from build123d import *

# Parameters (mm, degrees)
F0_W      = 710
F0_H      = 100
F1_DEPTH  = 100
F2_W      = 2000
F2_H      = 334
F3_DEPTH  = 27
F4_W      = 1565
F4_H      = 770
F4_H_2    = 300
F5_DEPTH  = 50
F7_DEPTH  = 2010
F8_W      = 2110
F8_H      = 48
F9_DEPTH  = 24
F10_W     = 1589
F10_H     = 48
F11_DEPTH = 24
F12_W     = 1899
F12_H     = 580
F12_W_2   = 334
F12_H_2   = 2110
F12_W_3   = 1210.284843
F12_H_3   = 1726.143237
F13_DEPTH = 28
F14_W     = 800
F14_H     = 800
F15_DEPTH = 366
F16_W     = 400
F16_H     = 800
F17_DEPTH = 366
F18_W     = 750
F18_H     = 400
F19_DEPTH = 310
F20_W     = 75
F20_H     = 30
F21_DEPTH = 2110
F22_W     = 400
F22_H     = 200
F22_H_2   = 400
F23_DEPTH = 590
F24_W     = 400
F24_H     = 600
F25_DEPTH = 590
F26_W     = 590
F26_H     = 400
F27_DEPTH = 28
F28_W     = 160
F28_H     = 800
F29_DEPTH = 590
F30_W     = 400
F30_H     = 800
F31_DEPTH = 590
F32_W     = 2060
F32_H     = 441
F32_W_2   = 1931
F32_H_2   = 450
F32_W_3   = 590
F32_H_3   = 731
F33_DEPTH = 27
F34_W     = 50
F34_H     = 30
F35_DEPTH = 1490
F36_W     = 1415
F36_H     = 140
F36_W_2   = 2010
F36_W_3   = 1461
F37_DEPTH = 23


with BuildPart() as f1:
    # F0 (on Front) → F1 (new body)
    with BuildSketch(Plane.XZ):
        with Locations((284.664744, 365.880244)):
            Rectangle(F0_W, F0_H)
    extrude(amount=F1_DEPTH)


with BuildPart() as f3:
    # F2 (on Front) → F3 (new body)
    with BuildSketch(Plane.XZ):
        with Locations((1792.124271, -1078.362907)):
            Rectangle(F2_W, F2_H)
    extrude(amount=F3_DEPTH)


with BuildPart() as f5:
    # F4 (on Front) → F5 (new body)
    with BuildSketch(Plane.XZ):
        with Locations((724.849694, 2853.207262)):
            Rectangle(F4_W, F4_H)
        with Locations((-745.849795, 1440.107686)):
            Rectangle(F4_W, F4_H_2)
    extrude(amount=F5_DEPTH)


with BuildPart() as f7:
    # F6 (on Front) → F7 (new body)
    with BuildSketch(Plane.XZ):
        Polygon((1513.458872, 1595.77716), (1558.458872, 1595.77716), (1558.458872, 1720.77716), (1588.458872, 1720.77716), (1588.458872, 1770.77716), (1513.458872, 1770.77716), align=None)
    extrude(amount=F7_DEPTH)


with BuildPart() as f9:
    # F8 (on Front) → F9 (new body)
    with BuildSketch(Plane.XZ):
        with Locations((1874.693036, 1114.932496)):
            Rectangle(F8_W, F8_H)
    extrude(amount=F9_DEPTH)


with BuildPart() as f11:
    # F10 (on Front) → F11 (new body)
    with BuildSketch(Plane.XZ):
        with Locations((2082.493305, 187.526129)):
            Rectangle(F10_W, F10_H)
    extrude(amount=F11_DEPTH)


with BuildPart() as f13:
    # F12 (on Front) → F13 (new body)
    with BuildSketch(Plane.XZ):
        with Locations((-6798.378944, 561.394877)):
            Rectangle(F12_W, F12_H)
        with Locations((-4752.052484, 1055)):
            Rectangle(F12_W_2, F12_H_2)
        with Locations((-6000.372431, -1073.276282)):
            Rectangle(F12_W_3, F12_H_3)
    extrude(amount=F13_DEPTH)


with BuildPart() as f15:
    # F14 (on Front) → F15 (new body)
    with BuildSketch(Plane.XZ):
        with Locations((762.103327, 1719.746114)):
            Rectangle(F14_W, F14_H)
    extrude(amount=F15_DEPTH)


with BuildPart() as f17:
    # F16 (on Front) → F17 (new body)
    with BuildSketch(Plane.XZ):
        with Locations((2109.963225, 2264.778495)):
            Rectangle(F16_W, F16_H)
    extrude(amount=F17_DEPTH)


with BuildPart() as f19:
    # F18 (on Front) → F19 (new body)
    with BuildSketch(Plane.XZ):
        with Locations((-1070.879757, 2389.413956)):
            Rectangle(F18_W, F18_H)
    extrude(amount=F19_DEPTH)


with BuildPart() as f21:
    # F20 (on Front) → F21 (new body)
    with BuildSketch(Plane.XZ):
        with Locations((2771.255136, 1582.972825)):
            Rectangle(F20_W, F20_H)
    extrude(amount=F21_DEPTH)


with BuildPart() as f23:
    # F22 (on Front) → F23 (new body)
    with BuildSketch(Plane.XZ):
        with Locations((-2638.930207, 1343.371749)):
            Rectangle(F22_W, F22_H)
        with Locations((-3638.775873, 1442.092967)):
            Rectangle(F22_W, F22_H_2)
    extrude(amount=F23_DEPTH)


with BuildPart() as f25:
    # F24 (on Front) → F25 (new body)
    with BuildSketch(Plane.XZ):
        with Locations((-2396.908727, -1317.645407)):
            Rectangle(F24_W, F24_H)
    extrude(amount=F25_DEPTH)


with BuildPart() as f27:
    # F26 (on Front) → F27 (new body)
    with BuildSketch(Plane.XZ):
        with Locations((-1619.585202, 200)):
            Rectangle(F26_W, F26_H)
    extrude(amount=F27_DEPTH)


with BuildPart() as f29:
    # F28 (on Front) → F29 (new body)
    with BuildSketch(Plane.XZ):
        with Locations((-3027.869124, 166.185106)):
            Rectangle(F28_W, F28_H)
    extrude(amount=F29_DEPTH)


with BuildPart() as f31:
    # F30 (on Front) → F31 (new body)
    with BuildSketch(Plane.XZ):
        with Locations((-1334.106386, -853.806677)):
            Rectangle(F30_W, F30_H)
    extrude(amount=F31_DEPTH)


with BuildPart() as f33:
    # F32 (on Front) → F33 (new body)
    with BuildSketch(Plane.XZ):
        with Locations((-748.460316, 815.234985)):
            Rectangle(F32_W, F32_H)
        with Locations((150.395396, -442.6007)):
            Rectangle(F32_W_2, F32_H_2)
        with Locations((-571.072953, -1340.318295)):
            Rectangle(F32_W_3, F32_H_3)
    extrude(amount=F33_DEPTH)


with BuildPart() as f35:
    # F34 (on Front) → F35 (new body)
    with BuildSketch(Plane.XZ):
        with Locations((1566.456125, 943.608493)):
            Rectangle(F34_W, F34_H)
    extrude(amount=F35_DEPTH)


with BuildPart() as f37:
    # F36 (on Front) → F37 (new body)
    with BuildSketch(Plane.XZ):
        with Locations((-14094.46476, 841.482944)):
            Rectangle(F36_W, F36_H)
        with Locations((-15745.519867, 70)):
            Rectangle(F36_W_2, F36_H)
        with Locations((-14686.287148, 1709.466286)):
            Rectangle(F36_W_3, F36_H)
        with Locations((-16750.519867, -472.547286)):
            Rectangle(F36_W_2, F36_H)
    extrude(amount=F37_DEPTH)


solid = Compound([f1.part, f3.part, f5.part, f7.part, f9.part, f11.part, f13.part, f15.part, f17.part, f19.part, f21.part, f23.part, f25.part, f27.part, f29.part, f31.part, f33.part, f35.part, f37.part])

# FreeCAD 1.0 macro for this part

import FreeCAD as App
import Part
import Sketcher
from FreeCAD import Vector
Q = App.Units.Quantity

doc = App.newDocument("Part")
params = doc.addObject("Spreadsheet::Sheet", "Params")
for row, (alias, value) in enumerate([
    ("sketch1_width", "710 mm"),
    ("sketch1_height", "100 mm"),
    ("pad1_length", "100 mm"),
    ("sketch2_width", "2000 mm"),
    ("sketch2_height", "334 mm"),
    ("pad2_length", "27 mm"),
    ("sketch3_width", "1565 mm"),
    ("sketch3_height", "770 mm"),
    ("sketch3_height2", "300 mm"),
    ("pad3_length", "50 mm"),
    ("sketch4_width", "45 mm"),
    ("sketch4_width2", "30 mm"),
    ("sketch4_height", "125 mm"),
    ("sketch4_height2", "50 mm"),
    ("pad4_length", "2010 mm"),
    ("sketch5_width", "2110 mm"),
    ("sketch5_height", "48 mm"),
    ("pad5_length", "24 mm"),
    ("sketch6_width", "1589 mm"),
    ("sketch6_height", "48 mm"),
    ("pad6_length", "24 mm"),
    ("sketch7_width", "1899 mm"),
    ("sketch7_width2", "334 mm"),
    ("sketch7_height", "580 mm"),
    ("sketch7_height2", "2110 mm"),
    ("pad7_length", "28 mm"),
    ("sketch8_width", "800 mm"),
    ("pad8_length", "366 mm"),
    ("sketch9_width", "400 mm"),
    ("sketch9_height", "800 mm"),
    ("pad9_length", "366 mm"),
    ("sketch10_width", "750 mm"),
    ("sketch10_height", "400 mm"),
    ("pad10_length", "310 mm"),
    ("sketch11_width", "75 mm"),
    ("sketch11_height", "30 mm"),
    ("pad11_length", "2110 mm"),
    ("sketch12_width", "400 mm"),
    ("sketch12_height", "200 mm"),
    ("pad12_length", "590 mm"),
    ("sketch13_width", "400 mm"),
    ("sketch13_height", "600 mm"),
    ("pad13_length", "590 mm"),
    ("sketch14_width", "590 mm"),
    ("sketch14_height", "400 mm"),
    ("pad14_length", "28 mm"),
    ("sketch15_width", "160 mm"),
    ("sketch15_height", "800 mm"),
    ("pad15_length", "590 mm"),
    ("sketch16_width", "400 mm"),
    ("sketch16_height", "800 mm"),
    ("pad16_length", "590 mm"),
    ("sketch17_width", "2060 mm"),
    ("sketch17_width2", "1931 mm"),
    ("sketch17_width3", "590 mm"),
    ("sketch17_height", "441 mm"),
    ("sketch17_height2", "450 mm"),
    ("pad17_length", "27 mm"),
    ("sketch18_width", "50 mm"),
    ("sketch18_height", "30 mm"),
    ("pad18_length", "1490 mm"),
    ("sketch19_width", "1415 mm"),
    ("sketch19_width2", "2010 mm"),
    ("sketch19_width3", "1461 mm"),
    ("sketch19_height", "140 mm"),
    ("pad19_length", "23 mm"),
], start=1):
    params.set(f"A{row}", alias)
    params.set(f"B{row}", "=" + value)
    params.setAlias(f"B{row}", alias)

body = doc.addObject("PartDesign::Body", "Body")

sketch1 = body.newObject("Sketcher::SketchObject", "Sketch")
sketch1.AttachmentSupport = (doc.getObject("XZ_Plane"), [""])
sketch1.MapMode = "FlatFace"
sketch1.addGeometry(Part.LineSegment(Vector(-70, 416, 0), Vector(-70, 316, 0)), False)
sketch1.addGeometry(Part.LineSegment(Vector(-70, 316, 0), Vector(640, 316, 0)), False)
sketch1.addGeometry(Part.LineSegment(Vector(640, 316, 0), Vector(640, 416, 0)), False)
sketch1.addGeometry(Part.LineSegment(Vector(640, 416, 0), Vector(-70, 416, 0)), False)
sketch1.addConstraint(Sketcher.Constraint("Coincident", 0, 2, 1, 1))
sketch1.addConstraint(Sketcher.Constraint("Coincident", 1, 2, 2, 1))
sketch1.addConstraint(Sketcher.Constraint("Coincident", 2, 2, 3, 1))
sketch1.addConstraint(Sketcher.Constraint("Coincident", 3, 2, 0, 1))
sketch1.addConstraint(Sketcher.Constraint("Vertical", 0))
sketch1.addConstraint(Sketcher.Constraint("Horizontal", 1))
sketch1.addConstraint(Sketcher.Constraint("Vertical", 2))
sketch1.addConstraint(Sketcher.Constraint("Horizontal", 3))
sketch1.addConstraint(Sketcher.Constraint("DistanceX", 1, 1, 1, 2, Q("710 mm")))
sketch1.addConstraint(Sketcher.Constraint("DistanceY", 0, 2, 0, 1, Q("100 mm")))
sketch1.addConstraint(Sketcher.Constraint("DistanceX", 0, 2, -1, 1, Q("70.335256 mm")))
sketch1.addConstraint(Sketcher.Constraint("DistanceY", -1, 1, 0, 2, Q("315.880244 mm")))
sketch1.setExpression("Constraints[8]", "Params.sketch1_width")
sketch1.setExpression("Constraints[9]", "Params.sketch1_height")
pad1 = body.newObject("PartDesign::Pad", "Pad")
pad1.Profile = sketch1
pad1.setExpression("Length", "Params.pad1_length")
body2 = doc.addObject("PartDesign::Body", "Body001")

sketch2 = body2.newObject("Sketcher::SketchObject", "Sketch001")
sketch2.AttachmentSupport = (doc.getObject("XZ_Plane001"), [""])
sketch2.MapMode = "FlatFace"
sketch2.addGeometry(Part.LineSegment(Vector(792, -911, 0), Vector(792, -1245, 0)), False)
sketch2.addGeometry(Part.LineSegment(Vector(792, -1245, 0), Vector(2792, -1245, 0)), False)
sketch2.addGeometry(Part.LineSegment(Vector(2792, -1245, 0), Vector(2792, -911, 0)), False)
sketch2.addGeometry(Part.LineSegment(Vector(2792, -911, 0), Vector(792, -911, 0)), False)
sketch2.addConstraint(Sketcher.Constraint("Coincident", 0, 2, 1, 1))
sketch2.addConstraint(Sketcher.Constraint("Coincident", 1, 2, 2, 1))
sketch2.addConstraint(Sketcher.Constraint("Coincident", 2, 2, 3, 1))
sketch2.addConstraint(Sketcher.Constraint("Coincident", 3, 2, 0, 1))
sketch2.addConstraint(Sketcher.Constraint("Vertical", 0))
sketch2.addConstraint(Sketcher.Constraint("Horizontal", 1))
sketch2.addConstraint(Sketcher.Constraint("Vertical", 2))
sketch2.addConstraint(Sketcher.Constraint("Horizontal", 3))
sketch2.addConstraint(Sketcher.Constraint("DistanceX", 1, 1, 1, 2, Q("2000 mm")))
sketch2.addConstraint(Sketcher.Constraint("DistanceY", 0, 2, 0, 1, Q("334 mm")))
sketch2.addConstraint(Sketcher.Constraint("DistanceX", -1, 1, 0, 2, Q("792.124271 mm")))
sketch2.addConstraint(Sketcher.Constraint("DistanceY", 0, 2, -1, 1, Q("1245.362907 mm")))
sketch2.setExpression("Constraints[8]", "Params.sketch2_width")
sketch2.setExpression("Constraints[9]", "Params.sketch2_height")
pad2 = body2.newObject("PartDesign::Pad", "Pad001")
pad2.Profile = sketch2
pad2.setExpression("Length", "Params.pad2_length")
body3 = doc.addObject("PartDesign::Body", "Body002")
body3.AllowCompound = True

sketch3 = body3.newObject("Sketcher::SketchObject", "Sketch002")
sketch3.AttachmentSupport = (doc.getObject("XZ_Plane002"), [""])
sketch3.MapMode = "FlatFace"
sketch3.addGeometry(Part.LineSegment(Vector(-58, 3238, 0), Vector(-58, 2468, 0)), False)
sketch3.addGeometry(Part.LineSegment(Vector(-58, 2468, 0), Vector(1507, 2468, 0)), False)
sketch3.addGeometry(Part.LineSegment(Vector(1507, 2468, 0), Vector(1507, 3238, 0)), False)
sketch3.addGeometry(Part.LineSegment(Vector(1507, 3238, 0), Vector(-58, 3238, 0)), False)
sketch3.addGeometry(Part.LineSegment(Vector(-1528, 1590, 0), Vector(-1528, 1290, 0)), False)
sketch3.addGeometry(Part.LineSegment(Vector(-1528, 1290, 0), Vector(37, 1290, 0)), False)
sketch3.addGeometry(Part.LineSegment(Vector(37, 1290, 0), Vector(37, 1590, 0)), False)
sketch3.addGeometry(Part.LineSegment(Vector(37, 1590, 0), Vector(-1528, 1590, 0)), False)
sketch3.addConstraint(Sketcher.Constraint("Coincident", 0, 2, 1, 1))
sketch3.addConstraint(Sketcher.Constraint("Coincident", 1, 2, 2, 1))
sketch3.addConstraint(Sketcher.Constraint("Coincident", 2, 2, 3, 1))
sketch3.addConstraint(Sketcher.Constraint("Coincident", 3, 2, 0, 1))
sketch3.addConstraint(Sketcher.Constraint("Coincident", 4, 2, 5, 1))
sketch3.addConstraint(Sketcher.Constraint("Coincident", 5, 2, 6, 1))
sketch3.addConstraint(Sketcher.Constraint("Coincident", 6, 2, 7, 1))
sketch3.addConstraint(Sketcher.Constraint("Coincident", 7, 2, 4, 1))
sketch3.addConstraint(Sketcher.Constraint("Vertical", 0))
sketch3.addConstraint(Sketcher.Constraint("Horizontal", 1))
sketch3.addConstraint(Sketcher.Constraint("Vertical", 2))
sketch3.addConstraint(Sketcher.Constraint("Horizontal", 3))
sketch3.addConstraint(Sketcher.Constraint("Vertical", 4))
sketch3.addConstraint(Sketcher.Constraint("Horizontal", 5))
sketch3.addConstraint(Sketcher.Constraint("Vertical", 6))
sketch3.addConstraint(Sketcher.Constraint("Horizontal", 7))
sketch3.addConstraint(Sketcher.Constraint("Equal", 3, 5))
sketch3.addConstraint(Sketcher.Constraint("DistanceX", 1, 1, 1, 2, Q("1565 mm")))
sketch3.addConstraint(Sketcher.Constraint("DistanceY", 0, 2, 0, 1, Q("770 mm")))
sketch3.addConstraint(Sketcher.Constraint("DistanceY", 4, 2, 4, 1, Q("300 mm")))
sketch3.addConstraint(Sketcher.Constraint("DistanceY", -1, 1, 0, 2, Q("2468.207262 mm")))
sketch3.addConstraint(Sketcher.Constraint("DistanceX", 4, 2, 0, 2, Q("1470.699489 mm")))
sketch3.addConstraint(Sketcher.Constraint("DistanceX", 0, 2, -1, 1, Q("57.650306 mm")))
sketch3.addConstraint(Sketcher.Constraint("DistanceY", -1, 1, 4, 2, Q("1290.107686 mm")))
sketch3.setExpression("Constraints[17]", "Params.sketch3_width")
sketch3.setExpression("Constraints[18]", "Params.sketch3_height")
sketch3.setExpression("Constraints[19]", "Params.sketch3_height2")
pad3 = body3.newObject("PartDesign::Pad", "Pad002")
pad3.Profile = sketch3
pad3.setExpression("Length", "Params.pad3_length")
body4 = doc.addObject("PartDesign::Body", "Body003")

sketch4 = body4.newObject("Sketcher::SketchObject", "Sketch003")
sketch4.AttachmentSupport = (doc.getObject("XZ_Plane003"), [""])
sketch4.MapMode = "FlatFace"
sketch4.addGeometry(Part.LineSegment(Vector(1513, 1596, 0), Vector(1558, 1596, 0)), False)
sketch4.addGeometry(Part.LineSegment(Vector(1558, 1596, 0), Vector(1558, 1721, 0)), False)
sketch4.addGeometry(Part.LineSegment(Vector(1558, 1721, 0), Vector(1588, 1721, 0)), False)
sketch4.addGeometry(Part.LineSegment(Vector(1588, 1721, 0), Vector(1588, 1771, 0)), False)
sketch4.addGeometry(Part.LineSegment(Vector(1588, 1771, 0), Vector(1513, 1771, 0)), False)
sketch4.addGeometry(Part.LineSegment(Vector(1513, 1771, 0), Vector(1513, 1596, 0)), False)
sketch4.addConstraint(Sketcher.Constraint("Coincident", 0, 2, 1, 1))
sketch4.addConstraint(Sketcher.Constraint("Coincident", 1, 2, 2, 1))
sketch4.addConstraint(Sketcher.Constraint("Coincident", 2, 2, 3, 1))
sketch4.addConstraint(Sketcher.Constraint("Coincident", 3, 2, 4, 1))
sketch4.addConstraint(Sketcher.Constraint("Coincident", 4, 2, 5, 1))
sketch4.addConstraint(Sketcher.Constraint("Coincident", 5, 2, 0, 1))
sketch4.addConstraint(Sketcher.Constraint("Horizontal", 0))
sketch4.addConstraint(Sketcher.Constraint("Vertical", 1))
sketch4.addConstraint(Sketcher.Constraint("Horizontal", 2))
sketch4.addConstraint(Sketcher.Constraint("Vertical", 3))
sketch4.addConstraint(Sketcher.Constraint("Horizontal", 4))
sketch4.addConstraint(Sketcher.Constraint("Vertical", 5))
sketch4.addConstraint(Sketcher.Constraint("DistanceX", 0, 1, 0, 2, Q("45 mm")))
sketch4.addConstraint(Sketcher.Constraint("DistanceX", 2, 1, 2, 2, Q("30 mm")))
sketch4.addConstraint(Sketcher.Constraint("DistanceY", 1, 1, 1, 2, Q("125 mm")))
sketch4.addConstraint(Sketcher.Constraint("DistanceY", 3, 1, 3, 2, Q("50 mm")))
sketch4.addConstraint(Sketcher.Constraint("DistanceX", -1, 1, 0, 2, Q("1558.458872 mm")))
sketch4.addConstraint(Sketcher.Constraint("DistanceY", -1, 1, 0, 2, Q("1595.77716 mm")))
sketch4.setExpression("Constraints[12]", "Params.sketch4_width")
sketch4.setExpression("Constraints[13]", "Params.sketch4_width2")
sketch4.setExpression("Constraints[14]", "Params.sketch4_height")
sketch4.setExpression("Constraints[15]", "Params.sketch4_height2")
pad4 = body4.newObject("PartDesign::Pad", "Pad003")
pad4.Profile = sketch4
pad4.setExpression("Length", "Params.pad4_length")
body5 = doc.addObject("PartDesign::Body", "Body004")

sketch5 = body5.newObject("Sketcher::SketchObject", "Sketch004")
sketch5.AttachmentSupport = (doc.getObject("XZ_Plane004"), [""])
sketch5.MapMode = "FlatFace"
sketch5.addGeometry(Part.LineSegment(Vector(820, 1139, 0), Vector(820, 1091, 0)), False)
sketch5.addGeometry(Part.LineSegment(Vector(820, 1091, 0), Vector(2930, 1091, 0)), False)
sketch5.addGeometry(Part.LineSegment(Vector(2930, 1091, 0), Vector(2930, 1139, 0)), False)
sketch5.addGeometry(Part.LineSegment(Vector(2930, 1139, 0), Vector(820, 1139, 0)), False)
sketch5.addConstraint(Sketcher.Constraint("Coincident", 0, 2, 1, 1))
sketch5.addConstraint(Sketcher.Constraint("Coincident", 1, 2, 2, 1))
sketch5.addConstraint(Sketcher.Constraint("Coincident", 2, 2, 3, 1))
sketch5.addConstraint(Sketcher.Constraint("Coincident", 3, 2, 0, 1))
sketch5.addConstraint(Sketcher.Constraint("Vertical", 0))
sketch5.addConstraint(Sketcher.Constraint("Horizontal", 1))
sketch5.addConstraint(Sketcher.Constraint("Vertical", 2))
sketch5.addConstraint(Sketcher.Constraint("Horizontal", 3))
sketch5.addConstraint(Sketcher.Constraint("DistanceX", 1, 1, 1, 2, Q("2110 mm")))
sketch5.addConstraint(Sketcher.Constraint("DistanceY", 0, 2, 0, 1, Q("48 mm")))
sketch5.addConstraint(Sketcher.Constraint("DistanceX", -1, 1, 0, 2, Q("819.693036 mm")))
sketch5.addConstraint(Sketcher.Constraint("DistanceY", -1, 1, 0, 2, Q("1090.932496 mm")))
sketch5.setExpression("Constraints[8]", "Params.sketch5_width")
sketch5.setExpression("Constraints[9]", "Params.sketch5_height")
pad5 = body5.newObject("PartDesign::Pad", "Pad004")
pad5.Profile = sketch5
pad5.setExpression("Length", "Params.pad5_length")
body6 = doc.addObject("PartDesign::Body", "Body005")

sketch6 = body6.newObject("Sketcher::SketchObject", "Sketch005")
sketch6.AttachmentSupport = (doc.getObject("XZ_Plane005"), [""])
sketch6.MapMode = "FlatFace"
sketch6.addGeometry(Part.LineSegment(Vector(1288, 212, 0), Vector(1288, 164, 0)), False)
sketch6.addGeometry(Part.LineSegment(Vector(1288, 164, 0), Vector(2877, 164, 0)), False)
sketch6.addGeometry(Part.LineSegment(Vector(2877, 164, 0), Vector(2877, 212, 0)), False)
sketch6.addGeometry(Part.LineSegment(Vector(2877, 212, 0), Vector(1288, 212, 0)), False)
sketch6.addConstraint(Sketcher.Constraint("Coincident", 0, 2, 1, 1))
sketch6.addConstraint(Sketcher.Constraint("Coincident", 1, 2, 2, 1))
sketch6.addConstraint(Sketcher.Constraint("Coincident", 2, 2, 3, 1))
sketch6.addConstraint(Sketcher.Constraint("Coincident", 3, 2, 0, 1))
sketch6.addConstraint(Sketcher.Constraint("Vertical", 0))
sketch6.addConstraint(Sketcher.Constraint("Horizontal", 1))
sketch6.addConstraint(Sketcher.Constraint("Vertical", 2))
sketch6.addConstraint(Sketcher.Constraint("Horizontal", 3))
sketch6.addConstraint(Sketcher.Constraint("DistanceX", 1, 1, 1, 2, Q("1589 mm")))
sketch6.addConstraint(Sketcher.Constraint("DistanceY", 0, 2, 0, 1, Q("48 mm")))
sketch6.addConstraint(Sketcher.Constraint("DistanceY", -1, 1, 0, 2, Q("163.526129 mm")))
sketch6.addConstraint(Sketcher.Constraint("DistanceX", -1, 1, 0, 2, Q("1287.993305 mm")))
sketch6.setExpression("Constraints[8]", "Params.sketch6_width")
sketch6.setExpression("Constraints[9]", "Params.sketch6_height")
pad6 = body6.newObject("PartDesign::Pad", "Pad005")
pad6.Profile = sketch6
pad6.setExpression("Length", "Params.pad6_length")
body7 = doc.addObject("PartDesign::Body", "Body006")
body7.AllowCompound = True

sketch7 = body7.newObject("Sketcher::SketchObject", "Sketch006")
sketch7.AttachmentSupport = (doc.getObject("XZ_Plane006"), [""])
sketch7.MapMode = "FlatFace"
sketch7.addGeometry(Part.LineSegment(Vector(-7748, 851, 0), Vector(-7748, 271, 0)), False)
sketch7.addGeometry(Part.LineSegment(Vector(-7748, 271, 0), Vector(-5849, 271, 0)), False)
sketch7.addGeometry(Part.LineSegment(Vector(-5849, 271, 0), Vector(-5849, 851, 0)), False)
sketch7.addGeometry(Part.LineSegment(Vector(-5849, 851, 0), Vector(-7748, 851, 0)), False)
sketch7.addGeometry(Part.LineSegment(Vector(-4919, 2110, 0), Vector(-4919, 0, 0)), False)
sketch7.addGeometry(Part.LineSegment(Vector(-4919, 0, 0), Vector(-4585, 0, 0)), False)
sketch7.addGeometry(Part.LineSegment(Vector(-4585, 0, 0), Vector(-4585, 2110, 0)), False)
sketch7.addGeometry(Part.LineSegment(Vector(-4585, 2110, 0), Vector(-4919, 2110, 0)), False)
sketch7.addGeometry(Part.LineSegment(Vector(-6606, -210, 0), Vector(-6606, -1936, 0)), False)
sketch7.addGeometry(Part.LineSegment(Vector(-6606, -1936, 0), Vector(-5395, -1936, 0)), False)
sketch7.addGeometry(Part.LineSegment(Vector(-5395, -1936, 0), Vector(-5395, -210, 0)), False)
sketch7.addGeometry(Part.LineSegment(Vector(-5395, -210, 0), Vector(-6606, -210, 0)), False)
sketch7.addConstraint(Sketcher.Constraint("Coincident", 0, 2, 1, 1))
sketch7.addConstraint(Sketcher.Constraint("Coincident", 1, 2, 2, 1))
sketch7.addConstraint(Sketcher.Constraint("Coincident", 2, 2, 3, 1))
sketch7.addConstraint(Sketcher.Constraint("Coincident", 3, 2, 0, 1))
sketch7.addConstraint(Sketcher.Constraint("Coincident", 4, 2, 5, 1))
sketch7.addConstraint(Sketcher.Constraint("Coincident", 5, 2, 6, 1))
sketch7.addConstraint(Sketcher.Constraint("Coincident", 6, 2, 7, 1))
sketch7.addConstraint(Sketcher.Constraint("Coincident", 7, 2, 4, 1))
sketch7.addConstraint(Sketcher.Constraint("Coincident", 8, 2, 9, 1))
sketch7.addConstraint(Sketcher.Constraint("Coincident", 9, 2, 10, 1))
sketch7.addConstraint(Sketcher.Constraint("Coincident", 10, 2, 11, 1))
sketch7.addConstraint(Sketcher.Constraint("Coincident", 11, 2, 8, 1))
sketch7.addConstraint(Sketcher.Constraint("Vertical", 0))
sketch7.addConstraint(Sketcher.Constraint("Horizontal", 1))
sketch7.addConstraint(Sketcher.Constraint("Vertical", 2))
sketch7.addConstraint(Sketcher.Constraint("Horizontal", 3))
sketch7.addConstraint(Sketcher.Constraint("Vertical", 4))
sketch7.addConstraint(Sketcher.Constraint("Horizontal", 5))
sketch7.addConstraint(Sketcher.Constraint("Vertical", 6))
sketch7.addConstraint(Sketcher.Constraint("Horizontal", 7))
sketch7.addConstraint(Sketcher.Constraint("Vertical", 8))
sketch7.addConstraint(Sketcher.Constraint("Horizontal", 9))
sketch7.addConstraint(Sketcher.Constraint("Vertical", 10))
sketch7.addConstraint(Sketcher.Constraint("Horizontal", 11))
sketch7.addConstraint(Sketcher.Constraint("PointOnObject", 4, 2, -1))
sketch7.addConstraint(Sketcher.Constraint("DistanceX", 1, 1, 1, 2, Q("1899 mm")))
sketch7.addConstraint(Sketcher.Constraint("DistanceX", 5, 1, 5, 2, Q("334 mm")))
sketch7.addConstraint(Sketcher.Constraint("DistanceY", 0, 2, 0, 1, Q("580 mm")))
sketch7.addConstraint(Sketcher.Constraint("DistanceY", 4, 2, 4, 1, Q("2110 mm")))
sketch7.addConstraint(Sketcher.Constraint("DistanceY", 8, 2, -1, 1, Q("1936.3479 mm")))
sketch7.addConstraint(Sketcher.Constraint("DistanceX", 9, 1, 9, 2, Q("1210.284843 mm")))
sketch7.addConstraint(Sketcher.Constraint("DistanceY", 8, 2, 8, 1, Q("1726.143237 mm")))
sketch7.addConstraint(Sketcher.Constraint("DistanceX", 9, 2, -1, 1, Q("5395.23001 mm")))
sketch7.addConstraint(Sketcher.Constraint("DistanceX", 1, 2, 4, 2, Q("929.82646 mm")))
sketch7.addConstraint(Sketcher.Constraint("DistanceX", 8, 2, 1, 2, Q("756.635909 mm")))
sketch7.addConstraint(Sketcher.Constraint("DistanceY", 10, 2, 1, 2, Q("481.59954 mm")))
sketch7.setExpression("Constraints[25]", "Params.sketch7_width")
sketch7.setExpression("Constraints[26]", "Params.sketch7_width2")
sketch7.setExpression("Constraints[27]", "Params.sketch7_height")
sketch7.setExpression("Constraints[28]", "Params.sketch7_height2")
pad7 = body7.newObject("PartDesign::Pad", "Pad006")
pad7.Profile = sketch7
pad7.setExpression("Length", "Params.pad7_length")
body8 = doc.addObject("PartDesign::Body", "Body007")

sketch8 = body8.newObject("Sketcher::SketchObject", "Sketch007")
sketch8.AttachmentSupport = (doc.getObject("XZ_Plane007"), [""])
sketch8.MapMode = "FlatFace"
sketch8.addGeometry(Part.LineSegment(Vector(362, 2120, 0), Vector(362, 1320, 0)), False)
sketch8.addGeometry(Part.LineSegment(Vector(362, 1320, 0), Vector(1162, 1320, 0)), False)
sketch8.addGeometry(Part.LineSegment(Vector(1162, 1320, 0), Vector(1162, 2120, 0)), False)
sketch8.addGeometry(Part.LineSegment(Vector(1162, 2120, 0), Vector(362, 2120, 0)), False)
sketch8.addConstraint(Sketcher.Constraint("Coincident", 0, 2, 1, 1))
sketch8.addConstraint(Sketcher.Constraint("Coincident", 1, 2, 2, 1))
sketch8.addConstraint(Sketcher.Constraint("Coincident", 2, 2, 3, 1))
sketch8.addConstraint(Sketcher.Constraint("Coincident", 3, 2, 0, 1))
sketch8.addConstraint(Sketcher.Constraint("Vertical", 0))
sketch8.addConstraint(Sketcher.Constraint("Horizontal", 1))
sketch8.addConstraint(Sketcher.Constraint("Vertical", 2))
sketch8.addConstraint(Sketcher.Constraint("Horizontal", 3))
sketch8.addConstraint(Sketcher.Constraint("Equal", 3, 0))
sketch8.addConstraint(Sketcher.Constraint("DistanceX", 1, 1, 1, 2, Q("800 mm")))
sketch8.addConstraint(Sketcher.Constraint("DistanceX", -1, 1, 0, 2, Q("362.103327 mm")))
sketch8.addConstraint(Sketcher.Constraint("DistanceY", -1, 1, 0, 2, Q("1319.746114 mm")))
sketch8.setExpression("Constraints[9]", "Params.sketch8_width")
pad8 = body8.newObject("PartDesign::Pad", "Pad007")
pad8.Profile = sketch8
pad8.setExpression("Length", "Params.pad8_length")
body9 = doc.addObject("PartDesign::Body", "Body008")

sketch9 = body9.newObject("Sketcher::SketchObject", "Sketch008")
sketch9.AttachmentSupport = (doc.getObject("XZ_Plane008"), [""])
sketch9.MapMode = "FlatFace"
sketch9.addGeometry(Part.LineSegment(Vector(1910, 2665, 0), Vector(1910, 1865, 0)), False)
sketch9.addGeometry(Part.LineSegment(Vector(1910, 1865, 0), Vector(2310, 1865, 0)), False)
sketch9.addGeometry(Part.LineSegment(Vector(2310, 1865, 0), Vector(2310, 2665, 0)), False)
sketch9.addGeometry(Part.LineSegment(Vector(2310, 2665, 0), Vector(1910, 2665, 0)), False)
sketch9.addConstraint(Sketcher.Constraint("Coincident", 0, 2, 1, 1))
sketch9.addConstraint(Sketcher.Constraint("Coincident", 1, 2, 2, 1))
sketch9.addConstraint(Sketcher.Constraint("Coincident", 2, 2, 3, 1))
sketch9.addConstraint(Sketcher.Constraint("Coincident", 3, 2, 0, 1))
sketch9.addConstraint(Sketcher.Constraint("Vertical", 0))
sketch9.addConstraint(Sketcher.Constraint("Horizontal", 1))
sketch9.addConstraint(Sketcher.Constraint("Vertical", 2))
sketch9.addConstraint(Sketcher.Constraint("Horizontal", 3))
sketch9.addConstraint(Sketcher.Constraint("DistanceX", 1, 1, 1, 2, Q("400 mm")))
sketch9.addConstraint(Sketcher.Constraint("DistanceY", 0, 2, 0, 1, Q("800 mm")))
sketch9.addConstraint(Sketcher.Constraint("DistanceX", -1, 1, 0, 2, Q("1909.963225 mm")))
sketch9.addConstraint(Sketcher.Constraint("DistanceY", -1, 1, 0, 2, Q("1864.778495 mm")))
sketch9.setExpression("Constraints[8]", "Params.sketch9_width")
sketch9.setExpression("Constraints[9]", "Params.sketch9_height")
pad9 = body9.newObject("PartDesign::Pad", "Pad008")
pad9.Profile = sketch9
pad9.setExpression("Length", "Params.pad9_length")
body10 = doc.addObject("PartDesign::Body", "Body009")

sketch10 = body10.newObject("Sketcher::SketchObject", "Sketch009")
sketch10.AttachmentSupport = (doc.getObject("XZ_Plane009"), [""])
sketch10.MapMode = "FlatFace"
sketch10.addGeometry(Part.LineSegment(Vector(-1446, 2589, 0), Vector(-1446, 2189, 0)), False)
sketch10.addGeometry(Part.LineSegment(Vector(-1446, 2189, 0), Vector(-696, 2189, 0)), False)
sketch10.addGeometry(Part.LineSegment(Vector(-696, 2189, 0), Vector(-696, 2589, 0)), False)
sketch10.addGeometry(Part.LineSegment(Vector(-696, 2589, 0), Vector(-1446, 2589, 0)), False)
sketch10.addConstraint(Sketcher.Constraint("Coincident", 0, 2, 1, 1))
sketch10.addConstraint(Sketcher.Constraint("Coincident", 1, 2, 2, 1))
sketch10.addConstraint(Sketcher.Constraint("Coincident", 2, 2, 3, 1))
sketch10.addConstraint(Sketcher.Constraint("Coincident", 3, 2, 0, 1))
sketch10.addConstraint(Sketcher.Constraint("Vertical", 0))
sketch10.addConstraint(Sketcher.Constraint("Horizontal", 1))
sketch10.addConstraint(Sketcher.Constraint("Vertical", 2))
sketch10.addConstraint(Sketcher.Constraint("Horizontal", 3))
sketch10.addConstraint(Sketcher.Constraint("DistanceX", 1, 1, 1, 2, Q("750 mm")))
sketch10.addConstraint(Sketcher.Constraint("DistanceY", 0, 2, 0, 1, Q("400 mm")))
sketch10.addConstraint(Sketcher.Constraint("DistanceX", 0, 2, -1, 1, Q("1445.879757 mm")))
sketch10.addConstraint(Sketcher.Constraint("DistanceY", -1, 1, 0, 2, Q("2189.413956 mm")))
sketch10.setExpression("Constraints[8]", "Params.sketch10_width")
sketch10.setExpression("Constraints[9]", "Params.sketch10_height")
pad10 = body10.newObject("PartDesign::Pad", "Pad009")
pad10.Profile = sketch10
pad10.setExpression("Length", "Params.pad10_length")
body11 = doc.addObject("PartDesign::Body", "Body010")

sketch11 = body11.newObject("Sketcher::SketchObject", "Sketch010")
sketch11.AttachmentSupport = (doc.getObject("XZ_Plane010"), [""])
sketch11.MapMode = "FlatFace"
sketch11.addGeometry(Part.LineSegment(Vector(2734, 1598, 0), Vector(2734, 1568, 0)), False)
sketch11.addGeometry(Part.LineSegment(Vector(2734, 1568, 0), Vector(2809, 1568, 0)), False)
sketch11.addGeometry(Part.LineSegment(Vector(2809, 1568, 0), Vector(2809, 1598, 0)), False)
sketch11.addGeometry(Part.LineSegment(Vector(2809, 1598, 0), Vector(2734, 1598, 0)), False)
sketch11.addConstraint(Sketcher.Constraint("Coincident", 0, 2, 1, 1))
sketch11.addConstraint(Sketcher.Constraint("Coincident", 1, 2, 2, 1))
sketch11.addConstraint(Sketcher.Constraint("Coincident", 2, 2, 3, 1))
sketch11.addConstraint(Sketcher.Constraint("Coincident", 3, 2, 0, 1))
sketch11.addConstraint(Sketcher.Constraint("Vertical", 0))
sketch11.addConstraint(Sketcher.Constraint("Horizontal", 1))
sketch11.addConstraint(Sketcher.Constraint("Vertical", 2))
sketch11.addConstraint(Sketcher.Constraint("Horizontal", 3))
sketch11.addConstraint(Sketcher.Constraint("DistanceX", 1, 1, 1, 2, Q("75 mm")))
sketch11.addConstraint(Sketcher.Constraint("DistanceY", 0, 2, 0, 1, Q("30 mm")))
sketch11.addConstraint(Sketcher.Constraint("DistanceX", -1, 1, 0, 2, Q("2733.755136 mm")))
sketch11.addConstraint(Sketcher.Constraint("DistanceY", -1, 1, 0, 2, Q("1567.972825 mm")))
sketch11.setExpression("Constraints[8]", "Params.sketch11_width")
sketch11.setExpression("Constraints[9]", "Params.sketch11_height")
pad11 = body11.newObject("PartDesign::Pad", "Pad010")
pad11.Profile = sketch11
pad11.setExpression("Length", "Params.pad11_length")
body12 = doc.addObject("PartDesign::Body", "Body011")
body12.AllowCompound = True

sketch12 = body12.newObject("Sketcher::SketchObject", "Sketch011")
sketch12.AttachmentSupport = (doc.getObject("XZ_Plane011"), [""])
sketch12.MapMode = "FlatFace"
sketch12.addGeometry(Part.LineSegment(Vector(-2839, 1443, 0), Vector(-2839, 1243, 0)), False)
sketch12.addGeometry(Part.LineSegment(Vector(-2839, 1243, 0), Vector(-2439, 1243, 0)), False)
sketch12.addGeometry(Part.LineSegment(Vector(-2439, 1243, 0), Vector(-2439, 1443, 0)), False)
sketch12.addGeometry(Part.LineSegment(Vector(-2439, 1443, 0), Vector(-2839, 1443, 0)), False)
sketch12.addGeometry(Part.LineSegment(Vector(-3839, 1642, 0), Vector(-3839, 1242, 0)), False)
sketch12.addGeometry(Part.LineSegment(Vector(-3839, 1242, 0), Vector(-3439, 1242, 0)), False)
sketch12.addGeometry(Part.LineSegment(Vector(-3439, 1242, 0), Vector(-3439, 1642, 0)), False)
sketch12.addGeometry(Part.LineSegment(Vector(-3439, 1642, 0), Vector(-3839, 1642, 0)), False)
sketch12.addConstraint(Sketcher.Constraint("Coincident", 0, 2, 1, 1))
sketch12.addConstraint(Sketcher.Constraint("Coincident", 1, 2, 2, 1))
sketch12.addConstraint(Sketcher.Constraint("Coincident", 2, 2, 3, 1))
sketch12.addConstraint(Sketcher.Constraint("Coincident", 3, 2, 0, 1))
sketch12.addConstraint(Sketcher.Constraint("Coincident", 4, 2, 5, 1))
sketch12.addConstraint(Sketcher.Constraint("Coincident", 5, 2, 6, 1))
sketch12.addConstraint(Sketcher.Constraint("Coincident", 6, 2, 7, 1))
sketch12.addConstraint(Sketcher.Constraint("Coincident", 7, 2, 4, 1))
sketch12.addConstraint(Sketcher.Constraint("Vertical", 0))
sketch12.addConstraint(Sketcher.Constraint("Horizontal", 1))
sketch12.addConstraint(Sketcher.Constraint("Vertical", 2))
sketch12.addConstraint(Sketcher.Constraint("Horizontal", 3))
sketch12.addConstraint(Sketcher.Constraint("Vertical", 4))
sketch12.addConstraint(Sketcher.Constraint("Horizontal", 5))
sketch12.addConstraint(Sketcher.Constraint("Vertical", 6))
sketch12.addConstraint(Sketcher.Constraint("Horizontal", 7))
sketch12.addConstraint(Sketcher.Constraint("Equal", 3, 5))
sketch12.addConstraint(Sketcher.Constraint("Equal", 7, 4))
sketch12.addConstraint(Sketcher.Constraint("DistanceX", 1, 1, 1, 2, Q("400 mm")))
sketch12.addConstraint(Sketcher.Constraint("DistanceY", 0, 2, 0, 1, Q("200 mm")))
sketch12.addConstraint(Sketcher.Constraint("DistanceY", -1, 1, 0, 2, Q("1243.371749 mm")))
sketch12.addConstraint(Sketcher.Constraint("DistanceY", 4, 2, 0, 2, Q("1.278782 mm")))
sketch12.addConstraint(Sketcher.Constraint("DistanceX", 0, 2, -1, 1, Q("2838.930207 mm")))
sketch12.addConstraint(Sketcher.Constraint("DistanceX", 4, 2, -1, 1, Q("3838.775873 mm")))
sketch12.setExpression("Constraints[18]", "Params.sketch12_width")
sketch12.setExpression("Constraints[19]", "Params.sketch12_height")
pad12 = body12.newObject("PartDesign::Pad", "Pad011")
pad12.Profile = sketch12
pad12.setExpression("Length", "Params.pad12_length")
body13 = doc.addObject("PartDesign::Body", "Body012")

sketch13 = body13.newObject("Sketcher::SketchObject", "Sketch012")
sketch13.AttachmentSupport = (doc.getObject("XZ_Plane012"), [""])
sketch13.MapMode = "FlatFace"
sketch13.addGeometry(Part.LineSegment(Vector(-2597, -1018, 0), Vector(-2597, -1618, 0)), False)
sketch13.addGeometry(Part.LineSegment(Vector(-2597, -1618, 0), Vector(-2197, -1618, 0)), False)
sketch13.addGeometry(Part.LineSegment(Vector(-2197, -1618, 0), Vector(-2197, -1018, 0)), False)
sketch13.addGeometry(Part.LineSegment(Vector(-2197, -1018, 0), Vector(-2597, -1018, 0)), False)
sketch13.addConstraint(Sketcher.Constraint("Coincident", 0, 2, 1, 1))
sketch13.addConstraint(Sketcher.Constraint("Coincident", 1, 2, 2, 1))
sketch13.addConstraint(Sketcher.Constraint("Coincident", 2, 2, 3, 1))
sketch13.addConstraint(Sketcher.Constraint("Coincident", 3, 2, 0, 1))
sketch13.addConstraint(Sketcher.Constraint("Vertical", 0))
sketch13.addConstraint(Sketcher.Constraint("Horizontal", 1))
sketch13.addConstraint(Sketcher.Constraint("Vertical", 2))
sketch13.addConstraint(Sketcher.Constraint("Horizontal", 3))
sketch13.addConstraint(Sketcher.Constraint("DistanceX", 1, 1, 1, 2, Q("400 mm")))
sketch13.addConstraint(Sketcher.Constraint("DistanceY", 0, 2, 0, 1, Q("600 mm")))
sketch13.addConstraint(Sketcher.Constraint("DistanceX", 0, 2, -1, 1, Q("2596.908727 mm")))
sketch13.addConstraint(Sketcher.Constraint("DistanceY", 0, 2, -1, 1, Q("1617.645407 mm")))
sketch13.setExpression("Constraints[8]", "Params.sketch13_width")
sketch13.setExpression("Constraints[9]", "Params.sketch13_height")
pad13 = body13.newObject("PartDesign::Pad", "Pad012")
pad13.Profile = sketch13
pad13.setExpression("Length", "Params.pad13_length")
body14 = doc.addObject("PartDesign::Body", "Body013")

sketch14 = body14.newObject("Sketcher::SketchObject", "Sketch013")
sketch14.AttachmentSupport = (doc.getObject("XZ_Plane013"), [""])
sketch14.MapMode = "FlatFace"
sketch14.addGeometry(Part.LineSegment(Vector(-1915, 400, 0), Vector(-1915, 0, 0)), False)
sketch14.addGeometry(Part.LineSegment(Vector(-1915, 0, 0), Vector(-1325, 0, 0)), False)
sketch14.addGeometry(Part.LineSegment(Vector(-1325, 0, 0), Vector(-1325, 400, 0)), False)
sketch14.addGeometry(Part.LineSegment(Vector(-1325, 400, 0), Vector(-1915, 400, 0)), False)
sketch14.addConstraint(Sketcher.Constraint("Coincident", 0, 2, 1, 1))
sketch14.addConstraint(Sketcher.Constraint("Coincident", 1, 2, 2, 1))
sketch14.addConstraint(Sketcher.Constraint("Coincident", 2, 2, 3, 1))
sketch14.addConstraint(Sketcher.Constraint("Coincident", 3, 2, 0, 1))
sketch14.addConstraint(Sketcher.Constraint("Vertical", 0))
sketch14.addConstraint(Sketcher.Constraint("Horizontal", 1))
sketch14.addConstraint(Sketcher.Constraint("Vertical", 2))
sketch14.addConstraint(Sketcher.Constraint("Horizontal", 3))
sketch14.addConstraint(Sketcher.Constraint("PointOnObject", 0, 2, -1))
sketch14.addConstraint(Sketcher.Constraint("DistanceX", 1, 1, 1, 2, Q("590 mm")))
sketch14.addConstraint(Sketcher.Constraint("DistanceY", 0, 2, 0, 1, Q("400 mm")))
sketch14.addConstraint(Sketcher.Constraint("DistanceX", 0, 2, -1, 1, Q("1914.585202 mm")))
sketch14.setExpression("Constraints[9]", "Params.sketch14_width")
sketch14.setExpression("Constraints[10]", "Params.sketch14_height")
pad14 = body14.newObject("PartDesign::Pad", "Pad013")
pad14.Profile = sketch14
pad14.setExpression("Length", "Params.pad14_length")
body15 = doc.addObject("PartDesign::Body", "Body014")

sketch15 = body15.newObject("Sketcher::SketchObject", "Sketch014")
sketch15.AttachmentSupport = (doc.getObject("XZ_Plane014"), [""])
sketch15.MapMode = "FlatFace"
sketch15.addGeometry(Part.LineSegment(Vector(-3108, 566, 0), Vector(-3108, -234, 0)), False)
sketch15.addGeometry(Part.LineSegment(Vector(-3108, -234, 0), Vector(-2948, -234, 0)), False)
sketch15.addGeometry(Part.LineSegment(Vector(-2948, -234, 0), Vector(-2948, 566, 0)), False)
sketch15.addGeometry(Part.LineSegment(Vector(-2948, 566, 0), Vector(-3108, 566, 0)), False)
sketch15.addConstraint(Sketcher.Constraint("Coincident", 0, 2, 1, 1))
sketch15.addConstraint(Sketcher.Constraint("Coincident", 1, 2, 2, 1))
sketch15.addConstraint(Sketcher.Constraint("Coincident", 2, 2, 3, 1))
sketch15.addConstraint(Sketcher.Constraint("Coincident", 3, 2, 0, 1))
sketch15.addConstraint(Sketcher.Constraint("Vertical", 0))
sketch15.addConstraint(Sketcher.Constraint("Horizontal", 1))
sketch15.addConstraint(Sketcher.Constraint("Vertical", 2))
sketch15.addConstraint(Sketcher.Constraint("Horizontal", 3))
sketch15.addConstraint(Sketcher.Constraint("DistanceX", 1, 1, 1, 2, Q("160 mm")))
sketch15.addConstraint(Sketcher.Constraint("DistanceY", 0, 2, 0, 1, Q("800 mm")))
sketch15.addConstraint(Sketcher.Constraint("DistanceX", 0, 2, -1, 1, Q("3107.869124 mm")))
sketch15.addConstraint(Sketcher.Constraint("DistanceY", 0, 2, -1, 1, Q("233.814894 mm")))
sketch15.setExpression("Constraints[8]", "Params.sketch15_width")
sketch15.setExpression("Constraints[9]", "Params.sketch15_height")
pad15 = body15.newObject("PartDesign::Pad", "Pad014")
pad15.Profile = sketch15
pad15.setExpression("Length", "Params.pad15_length")
body16 = doc.addObject("PartDesign::Body", "Body015")

sketch16 = body16.newObject("Sketcher::SketchObject", "Sketch015")
sketch16.AttachmentSupport = (doc.getObject("XZ_Plane015"), [""])
sketch16.MapMode = "FlatFace"
sketch16.addGeometry(Part.LineSegment(Vector(-1534, -454, 0), Vector(-1534, -1254, 0)), False)
sketch16.addGeometry(Part.LineSegment(Vector(-1534, -1254, 0), Vector(-1134, -1254, 0)), False)
sketch16.addGeometry(Part.LineSegment(Vector(-1134, -1254, 0), Vector(-1134, -454, 0)), False)
sketch16.addGeometry(Part.LineSegment(Vector(-1134, -454, 0), Vector(-1534, -454, 0)), False)
sketch16.addConstraint(Sketcher.Constraint("Coincident", 0, 2, 1, 1))
sketch16.addConstraint(Sketcher.Constraint("Coincident", 1, 2, 2, 1))
sketch16.addConstraint(Sketcher.Constraint("Coincident", 2, 2, 3, 1))
sketch16.addConstraint(Sketcher.Constraint("Coincident", 3, 2, 0, 1))
sketch16.addConstraint(Sketcher.Constraint("Vertical", 0))
sketch16.addConstraint(Sketcher.Constraint("Horizontal", 1))
sketch16.addConstraint(Sketcher.Constraint("Vertical", 2))
sketch16.addConstraint(Sketcher.Constraint("Horizontal", 3))
sketch16.addConstraint(Sketcher.Constraint("DistanceX", 1, 1, 1, 2, Q("400 mm")))
sketch16.addConstraint(Sketcher.Constraint("DistanceY", 0, 2, 0, 1, Q("800 mm")))
sketch16.addConstraint(Sketcher.Constraint("DistanceX", 0, 2, -1, 1, Q("1534.106386 mm")))
sketch16.addConstraint(Sketcher.Constraint("DistanceY", 0, 2, -1, 1, Q("1253.806677 mm")))
sketch16.setExpression("Constraints[8]", "Params.sketch16_width")
sketch16.setExpression("Constraints[9]", "Params.sketch16_height")
pad16 = body16.newObject("PartDesign::Pad", "Pad015")
pad16.Profile = sketch16
pad16.setExpression("Length", "Params.pad16_length")
body17 = doc.addObject("PartDesign::Body", "Body016")
body17.AllowCompound = True

sketch17 = body17.newObject("Sketcher::SketchObject", "Sketch016")
sketch17.AttachmentSupport = (doc.getObject("XZ_Plane016"), [""])
sketch17.MapMode = "FlatFace"
sketch17.addGeometry(Part.LineSegment(Vector(-1778, 1036, 0), Vector(-1778, 595, 0)), False)
sketch17.addGeometry(Part.LineSegment(Vector(-1778, 595, 0), Vector(282, 595, 0)), False)
sketch17.addGeometry(Part.LineSegment(Vector(282, 595, 0), Vector(282, 1036, 0)), False)
sketch17.addGeometry(Part.LineSegment(Vector(282, 1036, 0), Vector(-1778, 1036, 0)), False)
sketch17.addGeometry(Part.LineSegment(Vector(-815, -218, 0), Vector(-815, -668, 0)), False)
sketch17.addGeometry(Part.LineSegment(Vector(-815, -668, 0), Vector(1116, -668, 0)), False)
sketch17.addGeometry(Part.LineSegment(Vector(1116, -668, 0), Vector(1116, -218, 0)), False)
sketch17.addGeometry(Part.LineSegment(Vector(1116, -218, 0), Vector(-815, -218, 0)), False)
sketch17.addGeometry(Part.LineSegment(Vector(-866, -975, 0), Vector(-866, -1706, 0)), False)
sketch17.addGeometry(Part.LineSegment(Vector(-866, -1706, 0), Vector(-276, -1706, 0)), False)
sketch17.addGeometry(Part.LineSegment(Vector(-276, -1706, 0), Vector(-276, -975, 0)), False)
sketch17.addGeometry(Part.LineSegment(Vector(-276, -975, 0), Vector(-866, -975, 0)), False)
sketch17.addConstraint(Sketcher.Constraint("Coincident", 0, 2, 1, 1))
sketch17.addConstraint(Sketcher.Constraint("Coincident", 1, 2, 2, 1))
sketch17.addConstraint(Sketcher.Constraint("Coincident", 2, 2, 3, 1))
sketch17.addConstraint(Sketcher.Constraint("Coincident", 3, 2, 0, 1))
sketch17.addConstraint(Sketcher.Constraint("Coincident", 4, 2, 5, 1))
sketch17.addConstraint(Sketcher.Constraint("Coincident", 5, 2, 6, 1))
sketch17.addConstraint(Sketcher.Constraint("Coincident", 6, 2, 7, 1))
sketch17.addConstraint(Sketcher.Constraint("Coincident", 7, 2, 4, 1))
sketch17.addConstraint(Sketcher.Constraint("Coincident", 8, 2, 9, 1))
sketch17.addConstraint(Sketcher.Constraint("Coincident", 9, 2, 10, 1))
sketch17.addConstraint(Sketcher.Constraint("Coincident", 10, 2, 11, 1))
sketch17.addConstraint(Sketcher.Constraint("Coincident", 11, 2, 8, 1))
sketch17.addConstraint(Sketcher.Constraint("Vertical", 0))
sketch17.addConstraint(Sketcher.Constraint("Horizontal", 1))
sketch17.addConstraint(Sketcher.Constraint("Vertical", 2))
sketch17.addConstraint(Sketcher.Constraint("Horizontal", 3))
sketch17.addConstraint(Sketcher.Constraint("Vertical", 4))
sketch17.addConstraint(Sketcher.Constraint("Horizontal", 5))
sketch17.addConstraint(Sketcher.Constraint("Vertical", 6))
sketch17.addConstraint(Sketcher.Constraint("Horizontal", 7))
sketch17.addConstraint(Sketcher.Constraint("Vertical", 8))
sketch17.addConstraint(Sketcher.Constraint("Horizontal", 9))
sketch17.addConstraint(Sketcher.Constraint("Vertical", 10))
sketch17.addConstraint(Sketcher.Constraint("Horizontal", 11))
sketch17.addConstraint(Sketcher.Constraint("DistanceX", 1, 1, 1, 2, Q("2060 mm")))
sketch17.addConstraint(Sketcher.Constraint("DistanceX", 5, 1, 5, 2, Q("1931 mm")))
sketch17.addConstraint(Sketcher.Constraint("DistanceX", 9, 1, 9, 2, Q("590 mm")))
sketch17.addConstraint(Sketcher.Constraint("DistanceY", 0, 2, 0, 1, Q("441 mm")))
sketch17.addConstraint(Sketcher.Constraint("DistanceY", 4, 2, 4, 1, Q("450 mm")))
sketch17.addConstraint(Sketcher.Constraint("DistanceY", 8, 2, 8, 1, Q("731 mm")))
sketch17.addConstraint(Sketcher.Constraint("DistanceY", 4, 2, -1, 1, Q("667.6007 mm")))
sketch17.addConstraint(Sketcher.Constraint("DistanceX", 0, 2, 4, 2, Q("963.355712 mm")))
sketch17.addConstraint(Sketcher.Constraint("DistanceX", 8, 2, 4, 2, Q("50.968349 mm")))
sketch17.addConstraint(Sketcher.Constraint("DistanceY", 8, 2, 0, 2, Q("2300.55328 mm")))
sketch17.addConstraint(Sketcher.Constraint("DistanceX", 0, 2, -1, 1, Q("1778.460316 mm")))
sketch17.addConstraint(Sketcher.Constraint("DistanceY", -1, 1, 0, 2, Q("594.734985 mm")))
sketch17.setExpression("Constraints[24]", "Params.sketch17_width")
sketch17.setExpression("Constraints[25]", "Params.sketch17_width2")
sketch17.setExpression("Constraints[26]", "Params.sketch17_width3")
sketch17.setExpression("Constraints[27]", "Params.sketch17_height")
sketch17.setExpression("Constraints[28]", "Params.sketch17_height2")
pad17 = body17.newObject("PartDesign::Pad", "Pad016")
pad17.Profile = sketch17
pad17.setExpression("Length", "Params.pad17_length")
body18 = doc.addObject("PartDesign::Body", "Body017")

sketch18 = body18.newObject("Sketcher::SketchObject", "Sketch017")
sketch18.AttachmentSupport = (doc.getObject("XZ_Plane017"), [""])
sketch18.MapMode = "FlatFace"
sketch18.addGeometry(Part.LineSegment(Vector(1541, 959, 0), Vector(1541, 929, 0)), False)
sketch18.addGeometry(Part.LineSegment(Vector(1541, 929, 0), Vector(1591, 929, 0)), False)
sketch18.addGeometry(Part.LineSegment(Vector(1591, 929, 0), Vector(1591, 959, 0)), False)
sketch18.addGeometry(Part.LineSegment(Vector(1591, 959, 0), Vector(1541, 959, 0)), False)
sketch18.addConstraint(Sketcher.Constraint("Coincident", 0, 2, 1, 1))
sketch18.addConstraint(Sketcher.Constraint("Coincident", 1, 2, 2, 1))
sketch18.addConstraint(Sketcher.Constraint("Coincident", 2, 2, 3, 1))
sketch18.addConstraint(Sketcher.Constraint("Coincident", 3, 2, 0, 1))
sketch18.addConstraint(Sketcher.Constraint("Vertical", 0))
sketch18.addConstraint(Sketcher.Constraint("Horizontal", 1))
sketch18.addConstraint(Sketcher.Constraint("Vertical", 2))
sketch18.addConstraint(Sketcher.Constraint("Horizontal", 3))
sketch18.addConstraint(Sketcher.Constraint("DistanceX", 1, 1, 1, 2, Q("50 mm")))
sketch18.addConstraint(Sketcher.Constraint("DistanceY", 0, 2, 0, 1, Q("30 mm")))
sketch18.addConstraint(Sketcher.Constraint("DistanceX", -1, 1, 0, 2, Q("1541.456125 mm")))
sketch18.addConstraint(Sketcher.Constraint("DistanceY", -1, 1, 0, 2, Q("928.608493 mm")))
sketch18.setExpression("Constraints[8]", "Params.sketch18_width")
sketch18.setExpression("Constraints[9]", "Params.sketch18_height")
pad18 = body18.newObject("PartDesign::Pad", "Pad017")
pad18.Profile = sketch18
pad18.setExpression("Length", "Params.pad18_length")
body19 = doc.addObject("PartDesign::Body", "Body018")
body19.AllowCompound = True

sketch19 = body19.newObject("Sketcher::SketchObject", "Sketch018")
sketch19.AttachmentSupport = (doc.getObject("XZ_Plane018"), [""])
sketch19.MapMode = "FlatFace"
sketch19.addGeometry(Part.LineSegment(Vector(-14802, 911, 0), Vector(-14802, 771, 0)), False)
sketch19.addGeometry(Part.LineSegment(Vector(-14802, 771, 0), Vector(-13387, 771, 0)), False)
sketch19.addGeometry(Part.LineSegment(Vector(-13387, 771, 0), Vector(-13387, 911, 0)), False)
sketch19.addGeometry(Part.LineSegment(Vector(-13387, 911, 0), Vector(-14802, 911, 0)), False)
sketch19.addGeometry(Part.LineSegment(Vector(-16751, 140, 0), Vector(-16751, 0, 0)), False)
sketch19.addGeometry(Part.LineSegment(Vector(-16751, 0, 0), Vector(-14741, 0, 0)), False)
sketch19.addGeometry(Part.LineSegment(Vector(-14741, 0, 0), Vector(-14741, 140, 0)), False)
sketch19.addGeometry(Part.LineSegment(Vector(-14741, 140, 0), Vector(-16751, 140, 0)), False)
sketch19.addGeometry(Part.LineSegment(Vector(-15417, 1779, 0), Vector(-15417, 1639, 0)), False)
sketch19.addGeometry(Part.LineSegment(Vector(-15417, 1639, 0), Vector(-13956, 1639, 0)), False)
sketch19.addGeometry(Part.LineSegment(Vector(-13956, 1639, 0), Vector(-13956, 1779, 0)), False)
sketch19.addGeometry(Part.LineSegment(Vector(-13956, 1779, 0), Vector(-15417, 1779, 0)), False)
sketch19.addGeometry(Part.LineSegment(Vector(-17756, -403, 0), Vector(-17756, -543, 0)), False)
sketch19.addGeometry(Part.LineSegment(Vector(-17756, -543, 0), Vector(-15746, -543, 0)), False)
sketch19.addGeometry(Part.LineSegment(Vector(-15746, -543, 0), Vector(-15746, -403, 0)), False)
sketch19.addGeometry(Part.LineSegment(Vector(-15746, -403, 0), Vector(-17756, -403, 0)), False)
sketch19.addConstraint(Sketcher.Constraint("Coincident", 0, 2, 1, 1))
sketch19.addConstraint(Sketcher.Constraint("Coincident", 1, 2, 2, 1))
sketch19.addConstraint(Sketcher.Constraint("Coincident", 2, 2, 3, 1))
sketch19.addConstraint(Sketcher.Constraint("Coincident", 3, 2, 0, 1))
sketch19.addConstraint(Sketcher.Constraint("Coincident", 4, 2, 5, 1))
sketch19.addConstraint(Sketcher.Constraint("Coincident", 5, 2, 6, 1))
sketch19.addConstraint(Sketcher.Constraint("Coincident", 6, 2, 7, 1))
sketch19.addConstraint(Sketcher.Constraint("Coincident", 7, 2, 4, 1))
sketch19.addConstraint(Sketcher.Constraint("Coincident", 8, 2, 9, 1))
sketch19.addConstraint(Sketcher.Constraint("Coincident", 9, 2, 10, 1))
sketch19.addConstraint(Sketcher.Constraint("Coincident", 10, 2, 11, 1))
sketch19.addConstraint(Sketcher.Constraint("Coincident", 11, 2, 8, 1))
sketch19.addConstraint(Sketcher.Constraint("Coincident", 12, 2, 13, 1))
sketch19.addConstraint(Sketcher.Constraint("Coincident", 13, 2, 14, 1))
sketch19.addConstraint(Sketcher.Constraint("Coincident", 14, 2, 15, 1))
sketch19.addConstraint(Sketcher.Constraint("Coincident", 15, 2, 12, 1))
sketch19.addConstraint(Sketcher.Constraint("Vertical", 0))
sketch19.addConstraint(Sketcher.Constraint("Horizontal", 1))
sketch19.addConstraint(Sketcher.Constraint("Vertical", 2))
sketch19.addConstraint(Sketcher.Constraint("Horizontal", 3))
sketch19.addConstraint(Sketcher.Constraint("Vertical", 4))
sketch19.addConstraint(Sketcher.Constraint("Horizontal", 5))
sketch19.addConstraint(Sketcher.Constraint("Vertical", 6))
sketch19.addConstraint(Sketcher.Constraint("Horizontal", 7))
sketch19.addConstraint(Sketcher.Constraint("Vertical", 8))
sketch19.addConstraint(Sketcher.Constraint("Horizontal", 9))
sketch19.addConstraint(Sketcher.Constraint("Vertical", 10))
sketch19.addConstraint(Sketcher.Constraint("Horizontal", 11))
sketch19.addConstraint(Sketcher.Constraint("Vertical", 12))
sketch19.addConstraint(Sketcher.Constraint("Horizontal", 13))
sketch19.addConstraint(Sketcher.Constraint("Vertical", 14))
sketch19.addConstraint(Sketcher.Constraint("Horizontal", 15))
sketch19.addConstraint(Sketcher.Constraint("PointOnObject", 4, 2, -1))
sketch19.addConstraint(Sketcher.Constraint("Equal", 7, 13))
sketch19.addConstraint(Sketcher.Constraint("Equal", 2, 4))
sketch19.addConstraint(Sketcher.Constraint("Equal", 6, 8))
sketch19.addConstraint(Sketcher.Constraint("Equal", 10, 12))
sketch19.addConstraint(Sketcher.Constraint("DistanceX", 1, 1, 1, 2, Q("1415 mm")))
sketch19.addConstraint(Sketcher.Constraint("DistanceX", 5, 1, 5, 2, Q("2010 mm")))
sketch19.addConstraint(Sketcher.Constraint("DistanceX", 9, 1, 9, 2, Q("1461 mm")))
sketch19.addConstraint(Sketcher.Constraint("DistanceY", 0, 2, 0, 1, Q("140 mm")))
sketch19.addConstraint(Sketcher.Constraint("DistanceX", 12, 2, 4, 2, Q("1005 mm")))
sketch19.addConstraint(Sketcher.Constraint("DistanceX", 0, 2, -1, 1, Q("14801.96476 mm")))
sketch19.addConstraint(Sketcher.Constraint("DistanceX", 8, 2, 6, 2, Q("676.267281 mm")))
sketch19.addConstraint(Sketcher.Constraint("DistanceY", 12, 2, 8, 2, Q("2182.013572 mm")))
sketch19.addConstraint(Sketcher.Constraint("DistanceY", 13, 2, 0, 2, Q("1314.03023 mm")))
sketch19.addConstraint(Sketcher.Constraint("DistanceY", -1, 1, 0, 2, Q("771.482944 mm")))
sketch19.addConstraint(Sketcher.Constraint("DistanceX", 4, 2, -1, 1, Q("16750.519867 mm")))
sketch19.setExpression("Constraints[37]", "Params.sketch19_width")
sketch19.setExpression("Constraints[38]", "Params.sketch19_width2")
sketch19.setExpression("Constraints[39]", "Params.sketch19_width3")
sketch19.setExpression("Constraints[40]", "Params.sketch19_height")
pad19 = body19.newObject("PartDesign::Pad", "Pad018")
pad19.Profile = sketch19
pad19.setExpression("Length", "Params.pad19_length")

doc.recompute()
